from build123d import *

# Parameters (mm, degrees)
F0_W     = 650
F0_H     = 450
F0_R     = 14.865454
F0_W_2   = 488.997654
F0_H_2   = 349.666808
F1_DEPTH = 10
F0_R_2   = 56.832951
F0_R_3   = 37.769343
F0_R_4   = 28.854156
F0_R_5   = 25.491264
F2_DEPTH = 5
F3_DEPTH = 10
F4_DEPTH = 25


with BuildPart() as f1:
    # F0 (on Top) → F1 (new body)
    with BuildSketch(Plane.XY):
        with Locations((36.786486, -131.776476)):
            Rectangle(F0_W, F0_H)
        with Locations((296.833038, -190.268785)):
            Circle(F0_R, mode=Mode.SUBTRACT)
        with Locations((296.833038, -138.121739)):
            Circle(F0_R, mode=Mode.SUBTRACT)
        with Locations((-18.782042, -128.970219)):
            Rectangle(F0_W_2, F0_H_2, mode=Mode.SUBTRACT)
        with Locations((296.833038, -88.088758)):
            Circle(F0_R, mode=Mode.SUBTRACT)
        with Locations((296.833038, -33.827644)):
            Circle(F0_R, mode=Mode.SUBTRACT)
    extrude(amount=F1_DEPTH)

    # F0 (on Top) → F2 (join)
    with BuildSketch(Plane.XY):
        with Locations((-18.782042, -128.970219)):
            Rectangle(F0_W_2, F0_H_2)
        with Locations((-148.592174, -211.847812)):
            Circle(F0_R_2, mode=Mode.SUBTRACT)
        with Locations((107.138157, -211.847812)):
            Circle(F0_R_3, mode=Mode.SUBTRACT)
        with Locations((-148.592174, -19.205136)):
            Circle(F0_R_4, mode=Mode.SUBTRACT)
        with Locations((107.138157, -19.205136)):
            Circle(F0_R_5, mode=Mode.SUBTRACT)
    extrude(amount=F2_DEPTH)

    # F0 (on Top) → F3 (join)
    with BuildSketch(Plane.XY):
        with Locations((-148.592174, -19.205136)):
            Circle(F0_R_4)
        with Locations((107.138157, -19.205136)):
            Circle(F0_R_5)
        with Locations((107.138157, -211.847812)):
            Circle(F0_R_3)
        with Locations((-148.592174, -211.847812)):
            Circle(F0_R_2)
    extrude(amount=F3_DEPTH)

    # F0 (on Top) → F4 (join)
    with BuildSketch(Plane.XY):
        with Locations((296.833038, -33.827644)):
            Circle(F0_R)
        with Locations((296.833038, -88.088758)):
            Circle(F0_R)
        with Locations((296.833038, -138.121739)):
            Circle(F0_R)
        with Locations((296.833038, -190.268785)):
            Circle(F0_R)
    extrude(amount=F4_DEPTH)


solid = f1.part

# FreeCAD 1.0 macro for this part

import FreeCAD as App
import Part
import Sketcher
from FreeCAD import Vector


def add_polygon(sketch, points):
    """Adds a closed chain of lines whose ends are joined by coincident constraints."""
    first, n = sketch.GeometryCount, len(points)
    for a, b in zip(points, points[1:] + points[:1]):
        sketch.addGeometry(Part.LineSegment(App.Vector(*a, 0), App.Vector(*b, 0)), False)
    for i in range(n):
        sketch.addConstraint(Sketcher.Constraint("Coincident", first + i, 2, first + (i + 1) % n, 1))

doc = App.newDocument("Part")
body = doc.addObject("PartDesign::Body", "Body")

# Sketch on XY plane
sketch1 = body.newObject("Sketcher::SketchObject", "Sketch")
sketch1.AttachmentSupport = (doc.getObject("XY_Plane"), [""])
sketch1.MapMode = "FlatFace"
add_polygon(sketch1, [(-288, 93), (-288, -357), (362, -357), (362, 93)])  # lines 0-3
sketch1.addGeometry(Part.Circle(Vector(297, -190, 0), Vector(0, 0, 1), 15), False)  # 4
sketch1.addGeometry(Part.Circle(Vector(297, -138, 0), Vector(0, 0, 1), 15), False)  # 5
add_polygon(sketch1, [(226, -304), (-263, -304), (-263, 46), (226, 46)])  # lines 6-9
sketch1.addGeometry(Part.Circle(Vector(297, -88, 0), Vector(0, 0, 1), 15), False)  # 10
sketch1.addGeometry(Part.Circle(Vector(297, -34, 0), Vector(0, 0, 1), 15), False)  # 11
sketch1.addConstraint([
    Sketcher.Constraint("Vertical", 0),
    Sketcher.Constraint("Horizontal", 1),
    Sketcher.Constraint("Vertical", 2),
    Sketcher.Constraint("Horizontal", 3),
    Sketcher.Constraint("Horizontal", 6),
    Sketcher.Constraint("Vertical", 7),
    Sketcher.Constraint("Horizontal", 8),
    Sketcher.Constraint("Vertical", 9),
    Sketcher.Constraint("Equal", 4, 5),
    Sketcher.Constraint("Equal", 5, 10),
    Sketcher.Constraint("Equal", 10, 11),
    Sketcher.Constraint("Vertical", 4, 3, 5, 3),
    Sketcher.Constraint("Vertical", 5, 3, 10, 3),
    Sketcher.Constraint("Vertical", 10, 3, 11, 3),
    Sketcher.Constraint("DistanceX", 1, 1, 1, 2, 650.0),
    Sketcher.Constraint("DistanceY", 0, 2, 0, 1, 450.0),
    Sketcher.Constraint("Diameter", 4, 29.730908),
    Sketcher.Constraint("DistanceY", 7, 1, 7, 2, 349.666808),
    Sketcher.Constraint("DistanceX", 8, 2, 2, 2, 136.069701),
    Sketcher.Constraint("DistanceX", 6, 2, 6, 1, 488.997654),
    Sketcher.Constraint("DistanceX", -1, 1, 4, 3, 296.833038),
    Sketcher.Constraint("DistanceY", 5, 3, -1, 1, 138.121739),
    Sketcher.Constraint("DistanceY", 10, 3, -1, 1, 88.088758),
    Sketcher.Constraint("DistanceX", 6, 2, -1, 1, 263.280869),
    Sketcher.Constraint("DistanceY", 4, 3, 11, 3, 156.441141),
    Sketcher.Constraint("DistanceY", 0, 2, 4, 3, 166.507691),
    Sketcher.Constraint("DistanceY", 0, 2, 10, 3, 268.687718),
    Sketcher.Constraint("DistanceY", 6, 2, 4, 3, 113.534838),
])
pad1 = body.newObject("PartDesign::Pad", "Pad")
pad1.Profile = sketch1
pad1.Length = 10

# Sketch on XY plane
sketch2 = body.newObject("Sketcher::SketchObject", "Sketch001")
sketch2.AttachmentSupport = (doc.getObject("XY_Plane"), [""])
sketch2.MapMode = "FlatFace"
add_polygon(sketch2, [(-263, 46), (-263, -304), (226, -304), (226, 46)])  # lines 0-3
sketch2.addGeometry(Part.Circle(Vector(-149, -212, 0), Vector(0, 0, 1), 57), False)  # 4
sketch2.addGeometry(Part.Circle(Vector(107, -212, 0), Vector(0, 0, 1), 38), False)  # 5
sketch2.addGeometry(Part.Circle(Vector(-149, -19, 0), Vector(0, 0, 1), 29), False)  # 6
sketch2.addGeometry(Part.Circle(Vector(107, -19, 0), Vector(0, 0, 1), 25), False)  # 7
sketch2.addConstraint([
    Sketcher.Constraint("Vertical", 0),
    Sketcher.Constraint("Horizontal", 1),
    Sketcher.Constraint("Vertical", 2),
    Sketcher.Constraint("Horizontal", 3),
    Sketcher.Constraint("Horizontal", 4, 3, 5, 3),
    Sketcher.Constraint("Horizontal", 6, 3, 7, 3),
    Sketcher.Constraint("Vertical", 4, 3, 6, 3),
    Sketcher.Constraint("Vertical", 5, 3, 7, 3),
    Sketcher.Constraint("Diameter", 7, 50.982528),
    Sketcher.Constraint("Diameter", 4, 113.665902),
    Sketcher.Constraint("Diameter", 5, 75.538686),
    Sketcher.Constraint("Diameter", 6, 57.708312),
    Sketcher.Constraint("DistanceY", 0, 2, 0, 1, 349.666808),
    Sketcher.Constraint("DistanceX", 1, 1, 1, 2, 488.997654),
    Sketcher.Constraint("DistanceY", 4, 3, -1, 1, 211.847812),
    Sketcher.Constraint("DistanceX", 0, 2, -1, 1, 263.280869),
    Sketcher.Constraint("DistanceX", 4, 3, 5, 3, 255.730331),
    Sketcher.Constraint("DistanceY", 0, 2, 4, 3, 91.955811),
    Sketcher.Constraint("DistanceX", 4, 3, 1, 2, 374.308959),
    Sketcher.Constraint("DistanceY", 7, 3, 2, 2, 65.068321),
])
pad2 = body.newObject("PartDesign::Pad", "Pad001")
pad2.Profile = sketch2
pad2.Length = 5

# Sketch on XY plane
sketch3 = body.newObject("Sketcher::SketchObject", "Sketch002")
sketch3.AttachmentSupport = (doc.getObject("XY_Plane"), [""])
sketch3.MapMode = "FlatFace"
sketch3.addGeometry([
    Part.Circle(Vector(-149, -19, 0), Vector(0, 0, 1), 29),
    Part.Circle(Vector(107, -19, 0), Vector(0, 0, 1), 25),
    Part.Circle(Vector(107, -212, 0), Vector(0, 0, 1), 38),
    Part.Circle(Vector(-149, -212, 0), Vector(0, 0, 1), 57),
], False)
sketch3.addConstraint([
    Sketcher.Constraint("Horizontal", 0, 3, 1, 3),
    Sketcher.Constraint("Horizontal", 2, 3, 3, 3),
    Sketcher.Constraint("Vertical", 1, 3, 2, 3),
    Sketcher.Constraint("Vertical", 0, 3, 3, 3),
    Sketcher.Constraint("Diameter", 1, 50.982528),
    Sketcher.Constraint("Diameter", 0, 57.708312),
    Sketcher.Constraint("Diameter", 2, 75.538686),
    Sketcher.Constraint("Diameter", 3, 113.665902),
    Sketcher.Constraint("DistanceY", 2, 3, -1, 1, 211.847812),
    Sketcher.Constraint("DistanceX", 0, 3, 1, 3, 255.730331),
    Sketcher.Constraint("DistanceX", 0, 3, -1, 1, 148.592174),
    Sketcher.Constraint("DistanceY", 0, 3, -1, 1, 19.205136),
])
pad3 = body.newObject("PartDesign::Pad", "Pad002")
pad3.Profile = sketch3
pad3.Length = 10

# Sketch on XY plane
sketch4 = body.newObject("Sketcher::SketchObject", "Sketch003")
sketch4.AttachmentSupport = (doc.getObject("XY_Plane"), [""])
sketch4.MapMode = "FlatFace"
sketch4.addGeometry([
    Part.Circle(Vector(297, -34, 0), Vector(0, 0, 1), 15),
    Part.Circle(Vector(297, -88, 0), Vector(0, 0, 1), 15),
    Part.Circle(Vector(297, -138, 0), Vector(0, 0, 1), 15),
    Part.Circle(Vector(297, -190, 0), Vector(0, 0, 1), 15),
], False)
sketch4.addConstraint([
    Sketcher.Constraint("Equal", 0, 1),
    Sketcher.Constraint("Equal", 1, 2),
    Sketcher.Constraint("Equal", 2, 3),
    Sketcher.Constraint("Vertical", 0, 3, 1, 3),
    Sketcher.Constraint("Vertical", 1, 3, 2, 3),
    Sketcher.Constraint("Vertical", 2, 3, 3, 3),
    Sketcher.Constraint("Diameter", 0, 29.730908),
    Sketcher.Constraint("DistanceX", -1, 1, 0, 3, 296.833038),
    Sketcher.Constraint("DistanceY", 1, 3, -1, 1, 88.088758),
    Sketcher.Constraint("DistanceY", 2, 3, -1, 1, 138.121739),
    Sketcher.Constraint("DistanceY", 3, 3, 0, 3, 156.441141),
    Sketcher.Constraint("DistanceY", 0, 3, -1, 1, 33.827644),
])
pad4 = body.newObject("PartDesign::Pad", "Pad003")
pad4.Profile = sketch4
pad4.Length = 25

doc.recompute()
